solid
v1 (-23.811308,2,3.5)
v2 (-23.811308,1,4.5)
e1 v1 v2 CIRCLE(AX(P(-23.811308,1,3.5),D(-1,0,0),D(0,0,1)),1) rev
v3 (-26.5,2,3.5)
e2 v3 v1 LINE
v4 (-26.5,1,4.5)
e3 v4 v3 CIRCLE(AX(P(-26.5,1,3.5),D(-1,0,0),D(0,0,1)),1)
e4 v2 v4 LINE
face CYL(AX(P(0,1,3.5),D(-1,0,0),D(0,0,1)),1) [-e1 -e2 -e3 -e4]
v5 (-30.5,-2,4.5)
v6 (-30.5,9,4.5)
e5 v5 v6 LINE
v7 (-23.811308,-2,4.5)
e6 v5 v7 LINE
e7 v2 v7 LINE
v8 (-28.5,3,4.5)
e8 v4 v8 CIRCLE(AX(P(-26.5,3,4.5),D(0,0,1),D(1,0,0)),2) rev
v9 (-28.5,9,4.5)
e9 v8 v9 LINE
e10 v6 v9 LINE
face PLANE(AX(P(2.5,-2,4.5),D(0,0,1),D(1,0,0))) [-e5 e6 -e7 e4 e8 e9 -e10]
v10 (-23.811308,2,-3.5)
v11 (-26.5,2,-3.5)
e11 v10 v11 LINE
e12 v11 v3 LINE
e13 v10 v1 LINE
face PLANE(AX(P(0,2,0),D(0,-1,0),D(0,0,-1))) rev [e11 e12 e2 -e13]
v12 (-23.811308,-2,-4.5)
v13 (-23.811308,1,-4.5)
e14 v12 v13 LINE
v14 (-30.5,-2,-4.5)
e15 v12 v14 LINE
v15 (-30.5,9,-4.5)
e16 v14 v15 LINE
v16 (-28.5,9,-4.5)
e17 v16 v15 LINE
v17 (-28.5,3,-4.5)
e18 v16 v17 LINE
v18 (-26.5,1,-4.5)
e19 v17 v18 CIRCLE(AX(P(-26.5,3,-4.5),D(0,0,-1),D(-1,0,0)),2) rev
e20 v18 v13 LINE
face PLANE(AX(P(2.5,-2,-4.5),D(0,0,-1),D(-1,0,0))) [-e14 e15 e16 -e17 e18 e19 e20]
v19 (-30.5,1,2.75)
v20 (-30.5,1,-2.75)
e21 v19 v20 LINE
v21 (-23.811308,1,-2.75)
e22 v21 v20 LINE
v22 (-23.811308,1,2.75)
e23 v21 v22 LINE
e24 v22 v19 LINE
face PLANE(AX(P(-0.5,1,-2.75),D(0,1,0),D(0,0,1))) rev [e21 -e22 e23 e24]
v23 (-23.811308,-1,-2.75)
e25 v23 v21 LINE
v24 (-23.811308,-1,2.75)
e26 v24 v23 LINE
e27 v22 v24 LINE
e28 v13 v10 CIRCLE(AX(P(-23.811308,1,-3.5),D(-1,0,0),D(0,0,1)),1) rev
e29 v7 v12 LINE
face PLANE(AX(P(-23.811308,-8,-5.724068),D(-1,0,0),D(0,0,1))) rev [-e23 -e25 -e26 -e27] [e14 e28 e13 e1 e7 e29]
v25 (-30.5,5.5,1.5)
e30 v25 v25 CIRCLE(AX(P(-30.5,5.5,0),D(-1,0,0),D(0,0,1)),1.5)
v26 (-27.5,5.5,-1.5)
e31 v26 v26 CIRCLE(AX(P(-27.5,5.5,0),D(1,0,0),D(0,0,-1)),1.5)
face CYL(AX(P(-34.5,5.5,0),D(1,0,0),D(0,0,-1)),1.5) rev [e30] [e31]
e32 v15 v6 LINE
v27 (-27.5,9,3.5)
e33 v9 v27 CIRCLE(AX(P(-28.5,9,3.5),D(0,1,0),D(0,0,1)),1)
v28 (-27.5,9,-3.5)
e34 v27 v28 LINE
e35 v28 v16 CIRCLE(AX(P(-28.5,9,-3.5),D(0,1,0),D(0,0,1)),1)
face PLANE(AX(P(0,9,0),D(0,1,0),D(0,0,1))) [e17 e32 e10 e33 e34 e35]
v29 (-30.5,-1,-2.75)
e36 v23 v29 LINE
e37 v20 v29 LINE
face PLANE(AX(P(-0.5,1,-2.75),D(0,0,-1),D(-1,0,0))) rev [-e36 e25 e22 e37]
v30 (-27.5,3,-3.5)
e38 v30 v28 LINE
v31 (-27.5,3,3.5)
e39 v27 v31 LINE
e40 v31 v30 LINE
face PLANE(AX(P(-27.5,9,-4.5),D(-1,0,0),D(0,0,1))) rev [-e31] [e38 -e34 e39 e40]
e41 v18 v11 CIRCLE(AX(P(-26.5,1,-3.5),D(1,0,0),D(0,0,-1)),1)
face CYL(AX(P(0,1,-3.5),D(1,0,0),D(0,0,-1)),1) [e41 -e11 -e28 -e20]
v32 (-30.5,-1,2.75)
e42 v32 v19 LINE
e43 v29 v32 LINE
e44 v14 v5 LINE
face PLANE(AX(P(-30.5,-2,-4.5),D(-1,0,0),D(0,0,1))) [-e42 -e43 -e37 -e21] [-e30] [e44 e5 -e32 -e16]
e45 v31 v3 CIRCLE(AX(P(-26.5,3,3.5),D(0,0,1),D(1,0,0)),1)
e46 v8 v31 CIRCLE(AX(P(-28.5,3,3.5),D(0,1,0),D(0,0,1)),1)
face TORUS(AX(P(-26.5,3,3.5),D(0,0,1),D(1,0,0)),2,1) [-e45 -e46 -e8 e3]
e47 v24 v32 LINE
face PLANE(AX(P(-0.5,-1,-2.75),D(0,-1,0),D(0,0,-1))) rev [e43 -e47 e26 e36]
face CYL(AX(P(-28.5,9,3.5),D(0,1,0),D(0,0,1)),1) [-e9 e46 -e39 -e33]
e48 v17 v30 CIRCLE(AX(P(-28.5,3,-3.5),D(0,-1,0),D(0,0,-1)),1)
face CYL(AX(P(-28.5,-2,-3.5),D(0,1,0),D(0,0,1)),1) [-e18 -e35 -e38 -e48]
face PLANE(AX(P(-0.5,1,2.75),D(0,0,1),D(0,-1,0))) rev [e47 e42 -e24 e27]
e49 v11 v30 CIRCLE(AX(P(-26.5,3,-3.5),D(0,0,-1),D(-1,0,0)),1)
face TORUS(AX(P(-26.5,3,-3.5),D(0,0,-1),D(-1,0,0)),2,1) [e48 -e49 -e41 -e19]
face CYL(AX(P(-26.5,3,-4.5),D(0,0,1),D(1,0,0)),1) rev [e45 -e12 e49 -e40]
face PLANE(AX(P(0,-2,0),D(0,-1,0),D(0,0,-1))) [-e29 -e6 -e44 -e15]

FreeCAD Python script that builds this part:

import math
import FreeCAD as App
import Part
import Sketcher

V = App.Vector
Q = App.Units.Quantity


def edges_at(feature, points):
    """Names of the edges that pass closest to the given points."""
    edges = feature.Shape.Edges
    near = lambda p: min(range(len(edges)), key=lambda i: edges[i].distToShape(Part.Vertex(*p))[0])
    return sorted({f"Edge{near(p) + 1}" for p in points})

doc = App.newDocument("Part")
body = doc.addObject("PartDesign::Body", "Body")

# Sketch on XY plane
sketch1 = doc.addObject("Sketcher::SketchObject", "Sketch")
body.addObject(sketch1)
sketch1.AttachmentSupport = (doc.XY_Plane, [""])
sketch1.MapMode = "FlatFace"
sketch1.addGeometry(Part.LineSegment(V(-6, 0, 0), V(0, 0, 0)), False)
sketch1.addGeometry(Part.ArcOfCircle(Part.Circle(V(-3, 0, 0), V(0, 0, 1), 3), math.radians(0), math.radians(180)), False)
sketch1.addConstraint(Sketcher.Constraint("Coincident", 0, 1, 1, 2))
sketch1.addConstraint(Sketcher.Constraint("Coincident", 1, 1, 0, 2))
sketch1.addConstraint(Sketcher.Constraint("Horizontal", 0))
sketch1.addConstraint(Sketcher.Constraint("Coincident", 1, 1, -1, 1))
sketch1.addConstraint(Sketcher.Constraint("PointOnObject", 1, 3, -1))
sketch1.addConstraint(Sketcher.Constraint("Radius", 1, Q("3 mm")))
revolution = doc.addObject("PartDesign::Revolution", "Revolution")
body.addObject(revolution)
revolution.Profile = sketch1
revolution.ReferenceAxis = (sketch1, ["H_Axis"])
revolution.Angle = 360

# Sketch on XZ plane
sketch2 = doc.addObject("Sketcher::SketchObject", "Sketch001")
body.addObject(sketch2)
sketch2.AttachmentSupport = (doc.XZ_Plane, [""])
sketch2.MapMode = "FlatFace"
sketch2.addGeometry(Part.Circle(V(-3, 0, 0), V(0, 0, 1), 1.5), False)
sketch2.addConstraint(Sketcher.Constraint("PointOnObject", 0, 3, -1))
sketch2.addConstraint(Sketcher.Constraint("Diameter", 0, Q("3 mm")))
sketch2.addConstraint(Sketcher.Constraint("DistanceX", 0, 3, -1, 1, Q("3 mm")))
pocket1 = doc.addObject("PartDesign::Pocket", "Pocket")
body.addObject(pocket1)
pocket1.Profile = sketch2
pocket1.Type = "ThroughAll"
pocket1.Midplane = True

# Sketch on XZ plane
sketch3 = doc.addObject("Sketcher::SketchObject", "Sketch002")
body.addObject(sketch3)
sketch3.AttachmentSupport = (doc.XZ_Plane, [""])
sketch3.MapMode = "FlatFace"
sketch3.addGeometry(Part.LineSegment(V(-30, -4, 0), V(-30, 4, 0)), False)
sketch3.addGeometry(Part.LineSegment(V(-30, 4, 0), V(2, 4, 0)), False)
sketch3.addGeometry(Part.LineSegment(V(2, 4, 0), V(2, -4, 0)), False)
sketch3.addGeometry(Part.LineSegment(V(2, -4, 0), V(-30, -4, 0)), False)
sketch3.addConstraint(Sketcher.Constraint("Coincident", 0, 2, 1, 1))
sketch3.addConstraint(Sketcher.Constraint("Coincident", 1, 2, 2, 1))
sketch3.addConstraint(Sketcher.Constraint("Coincident", 2, 2, 3, 1))
sketch3.addConstraint(Sketcher.Constraint("Coincident", 3, 2, 0, 1))
sketch3.addConstraint(Sketcher.Constraint("Vertical", 0))
sketch3.addConstraint(Sketcher.Constraint("Horizontal", 1))
sketch3.addConstraint(Sketcher.Constraint("Vertical", 2))
sketch3.addConstraint(Sketcher.Constraint("Horizontal", 3))
sketch3.addConstraint(Sketcher.Constraint("DistanceX", 1, 1, 1, 2, Q("33 mm")))
sketch3.addConstraint(Sketcher.Constraint("DistanceY", 0, 1, 0, 2, Q("9 mm")))
sketch3.addConstraint(Sketcher.Constraint("DistanceX", 0, 2, -1, 1, Q("30.5 mm")))
sketch3.addConstraint(Sketcher.Constraint("DistanceY", -1, 1, 0, 2, Q("4.5 mm")))
pad1 = doc.addObject("PartDesign::Pad", "Pad")
body.addObject(pad1)
pad1.Profile = sketch3
pad1.Type = "TwoLengths"
pad1.Length = 2
pad1.Length2 = 2
pad1.Reversed = True

# Sketch on XZ plane
sketch4 = doc.addObject("Sketcher::SketchObject", "Sketch003")
body.addObject(sketch4)
sketch4.AttachmentSupport = (doc.XZ_Plane, [""])
sketch4.MapMode = "FlatFace"
sketch4.AttachmentOffset = App.Placement(V(0, 0, -2), App.Rotation())
sketch4.addGeometry(Part.Circle(V(-3, 0, 0), V(0, 0, 1), 1.5), False)
sketch4.addConstraint(Sketcher.Constraint("PointOnObject", 0, 3, -1))
sketch4.addConstraint(Sketcher.Constraint("Diameter", 0, Q("3 mm")))
sketch4.addConstraint(Sketcher.Constraint("DistanceX", 0, 3, -1, 1, Q("3 mm")))
pocket2 = doc.addObject("PartDesign::Pocket", "Pocket001")
body.addObject(pocket2)
pocket2.Profile = sketch4
pocket2.Type = "ThroughAll"
pocket2.Midplane = True

# Sketch on XZ plane
sketch5 = doc.addObject("Sketcher::SketchObject", "Sketch004")
body.addObject(sketch5)
sketch5.AttachmentSupport = (doc.XZ_Plane, [""])
sketch5.MapMode = "FlatFace"
sketch5.addGeometry(Part.LineSegment(V(-3, 3.5, 0), V(-3, -3.5, 0)), False)
sketch5.addGeometry(Part.ArcOfCircle(Part.Circle(V(-3, 0, 0), V(0, 0, 1), 3.5), math.radians(90), math.radians(270)), False)
sketch5.addGeometry(Part.LineSegment(V(-3, -3.5, 0), V(-3, 3.5, 0)), True)  # axis
sketch5.addConstraint(Sketcher.Constraint("Coincident", 0, 1, 1, 1))
sketch5.addConstraint(Sketcher.Constraint("Coincident", 1, 2, 0, 2))
sketch5.addConstraint(Sketcher.Constraint("Vertical", 0))
sketch5.addConstraint(Sketcher.Constraint("Vertical", 2))
sketch5.addConstraint(Sketcher.Constraint("Coincident", 2, 1, 1, 2))
sketch5.addConstraint(Sketcher.Constraint("PointOnObject", 1, 3, -1))
sketch5.addConstraint(Sketcher.Constraint("Vertical", 1, 3, 0, 1))
sketch5.addConstraint(Sketcher.Constraint("Equal", 0, 2))
sketch5.addConstraint(Sketcher.Constraint("Radius", 1, Q("3.5 mm")))
sketch5.addConstraint(Sketcher.Constraint("DistanceX", 1, 3, -1, 1, Q("3 mm")))
groove = doc.addObject("PartDesign::Groove", "Groove")
body.addObject(groove)
groove.Profile = sketch5
groove.ReferenceAxis = (sketch5, ["Axis0"])
groove.Angle = 360

# Sketch on YZ plane
sketch6 = doc.addObject("Sketcher::SketchObject", "Sketch005")
body.addObject(sketch6)
sketch6.AttachmentSupport = (doc.YZ_Plane, [""])
sketch6.MapMode = "FlatFace"
sketch6.AttachmentOffset = App.Placement(V(0, 0, -30.5), App.Rotation())
sketch6.addGeometry(Part.LineSegment(V(1, -2.8, 0), V(-1, -2.8, 0)), False)
sketch6.addGeometry(Part.LineSegment(V(-1, -2.8, 0), V(-1, 2.8, 0)), False)
sketch6.addGeometry(Part.LineSegment(V(-1, 2.8, 0), V(1, 2.8, 0)), False)
sketch6.addGeometry(Part.LineSegment(V(1, 2.8, 0), V(1, -2.8, 0)), False)
sketch6.addConstraint(Sketcher.Constraint("Coincident", 0, 2, 1, 1))
sketch6.addConstraint(Sketcher.Constraint("Coincident", 1, 2, 2, 1))
sketch6.addConstraint(Sketcher.Constraint("Coincident", 2, 2, 3, 1))
sketch6.addConstraint(Sketcher.Constraint("Coincident", 3, 2, 0, 1))
sketch6.addConstraint(Sketcher.Constraint("Horizontal", 0))
sketch6.addConstraint(Sketcher.Constraint("Vertical", 1))
sketch6.addConstraint(Sketcher.Constraint("Horizontal", 2))
sketch6.addConstraint(Sketcher.Constraint("Vertical", 3))
sketch6.addConstraint(Sketcher.Constraint("Symmetric", 0, 2, 2, 2, -1, 1))
sketch6.addConstraint(Sketcher.Constraint("DistanceX", 0, 2, 0, 1, Q("2 mm")))
sketch6.addConstraint(Sketcher.Constraint("DistanceY", 1, 1, 1, 2, Q("5.5 mm")))
pocket3 = doc.addObject("PartDesign::Pocket", "Pocket002")
body.addObject(pocket3)
pocket3.Profile = sketch6
pocket3.Length = 30
pocket3.Reversed = True

# Sketch on XZ plane
sketch7 = doc.addObject("Sketcher::SketchObject", "Sketch006")
body.addObject(sketch7)
sketch7.AttachmentSupport = (doc.XZ_Plane, [""])
sketch7.MapMode = "FlatFace"
sketch7.AttachmentOffset = App.Placement(V(0, 0, -2), App.Rotation())
sketch7.addGeometry(Part.LineSegment(V(-30.5, -4.5, 0), V(-30.5, 4.5, 0)), False)
sketch7.addGeometry(Part.LineSegment(V(-30.5, 4.5, 0), V(-27.5, 4.5, 0)), False)
sketch7.addGeometry(Part.LineSegment(V(-27.5, 4.5, 0), V(-27.5, -4.5, 0)), False)
sketch7.addGeometry(Part.LineSegment(V(-27.5, -4.5, 0), V(-30.5, -4.5, 0)), False)
sketch7.addConstraint(Sketcher.Constraint("Coincident", 0, 2, 1, 1))
sketch7.addConstraint(Sketcher.Constraint("Coincident", 1, 2, 2, 1))
sketch7.addConstraint(Sketcher.Constraint("Coincident", 2, 2, 3, 1))
sketch7.addConstraint(Sketcher.Constraint("Coincident", 3, 2, 0, 1))
sketch7.addConstraint(Sketcher.Constraint("Vertical", 0))
sketch7.addConstraint(Sketcher.Constraint("Horizontal", 1))
sketch7.addConstraint(Sketcher.Constraint("Vertical", 2))
sketch7.addConstraint(Sketcher.Constraint("Horizontal", 3))
sketch7.addConstraint(Sketcher.Constraint("DistanceX", 1, 1, 1, 2, Q("3 mm")))
sketch7.addConstraint(Sketcher.Constraint("DistanceY", 0, 1, 0, 2, Q("9 mm")))
sketch7.addConstraint(Sketcher.Constraint("DistanceX", 0, 2, -1, 1, Q("30.5 mm")))
sketch7.addConstraint(Sketcher.Constraint("DistanceY", -1, 1, 0, 2, Q("4.5 mm")))
pad2 = doc.addObject("PartDesign::Pad", "Pad001")
body.addObject(pad2)
pad2.Profile = sketch7
pad2.Length = 7
pad2.Reversed = True

# Sketch on YZ plane
sketch8 = doc.addObject("Sketcher::SketchObject", "Sketch007")
body.addObject(sketch8)
sketch8.AttachmentSupport = (doc.YZ_Plane, [""])
sketch8.MapMode = "FlatFace"
sketch8.AttachmentOffset = App.Placement(V(0, 0, -27.5), App.Rotation())
sketch8.addGeometry(Part.Circle(V(5.5, 0, 0), V(0, 0, 1), 1.5), False)
sketch8.addConstraint(Sketcher.Constraint("PointOnObject", 0, 3, -1))
sketch8.addConstraint(Sketcher.Constraint("Diameter", 0, Q("3 mm")))
sketch8.addConstraint(Sketcher.Constraint("DistanceX", -1, 1, 0, 3, Q("5.5 mm")))
pocket4 = doc.addObject("PartDesign::Pocket", "Pocket003")
body.addObject(pocket4)
pocket4.Profile = sketch8
pocket4.Length = 7
doc.recompute()

fillet = doc.addObject("PartDesign::Fillet", "Fillet")
body.addObject(fillet)
fillet.Base = (pocket4, edges_at(pocket4, [(2.5, 0, -4.5)]))
fillet.Radius = 1
doc.recompute()

fillet2 = doc.addObject("PartDesign::Fillet", "Fillet001")
body.addObject(fillet2)
fillet2.Base = (fillet, edges_at(fillet, [(2.5, 0, 4.5)]))
fillet2.Radius = 1
doc.recompute()

fillet3 = doc.addObject("PartDesign::Fillet", "Fillet002")
body.addObject(fillet3)
fillet3.Base = (fillet2, edges_at(fillet2, [(-27.5, 2, 0)]))
fillet3.Radius = 1
doc.recompute()

fillet4 = doc.addObject("PartDesign::Fillet", "Fillet003")
body.addObject(fillet4)
fillet4.Base = (fillet3, edges_at(fillet3, [
    (-12.5, 2, 4.5),
    (-27.207, 2.293, -4.5),
    (-27.207, 2.293, 4.5),
    (-27.5, 6, 4.5),
    (-27.5, 6, -4.5),
    (-12.5, 2, -4.5),
    (2.207, 2, -4.207),
    (2.5, 2, 0),
    (2.207, 2, 4.207),
]))
fillet4.Radius = 1
body2 = doc.addObject("PartDesign::Body", "Body001")

# Sketch on XZ plane
sketch9 = doc.addObject("Sketcher::SketchObject", "Sketch008")
body2.addObject(sketch9)
sketch9.AttachmentSupport = (doc.getObject("XZ_Plane001"), [""])
sketch9.MapMode = "FlatFace"
sketch9.addGeometry(Part.LineSegment(V(-3, 3, 0), V(-3, -3, 0)), False)
sketch9.addGeometry(Part.ArcOfCircle(Part.Circle(V(-3, 0, 0), V(0, 0, 1), 3), math.radians(90), math.radians(270)), False)
sketch9.addGeometry(Part.LineSegment(V(-3, -3, 0), V(-3, 3, 0)), True)  # axis
sketch9.addConstraint(Sketcher.Constraint("Coincident", 0, 1, 1, 1))
sketch9.addConstraint(Sketcher.Constraint("Coincident", 1, 2, 0, 2))
sketch9.addConstraint(Sketcher.Constraint("Vertical", 0))
sketch9.addConstraint(Sketcher.Constraint("Vertical", 2))
sketch9.addConstraint(Sketcher.Constraint("Coincident", 2, 1, 1, 2))
sketch9.addConstraint(Sketcher.Constraint("PointOnObject", 1, 3, -1))
sketch9.addConstraint(Sketcher.Constraint("Vertical", 1, 3, 0, 1))
sketch9.addConstraint(Sketcher.Constraint("Equal", 0, 2))
sketch9.addConstraint(Sketcher.Constraint("Radius", 1, Q("3 mm")))
sketch9.addConstraint(Sketcher.Constraint("DistanceX", 1, 3, -1, 1, Q("3 mm")))
revolution2 = doc.addObject("PartDesign::Revolution", "Revolution001")
body2.addObject(revolution2)
revolution2.Profile = sketch9
revolution2.ReferenceAxis = (sketch9, ["Axis0"])
revolution2.Angle = 360

# Sketch on XZ plane
sketch10 = doc.addObject("Sketcher::SketchObject", "Sketch009")
body2.addObject(sketch10)
sketch10.AttachmentSupport = (doc.getObject("XZ_Plane001"), [""])
sketch10.MapMode = "FlatFace"
sketch10.addGeometry(Part.Circle(V(-3, 0, 0), V(0, 0, 1), 1.5), False)
sketch10.addConstraint(Sketcher.Constraint("PointOnObject", 0, 3, -1))
sketch10.addConstraint(Sketcher.Constraint("Diameter", 0, Q("3 mm")))
sketch10.addConstraint(Sketcher.Constraint("DistanceX", 0, 3, -1, 1, Q("3 mm")))
pocket5 = doc.addObject("PartDesign::Pocket", "Pocket004")
body2.addObject(pocket5)
pocket5.Profile = sketch10
pocket5.Type = "ThroughAll"
pocket5.Midplane = True

# Sketch on YZ plane
sketch11 = doc.addObject("Sketcher::SketchObject", "Sketch010")
body2.addObject(sketch11)
sketch11.AttachmentSupport = (doc.getObject("YZ_Plane001"), [""])
sketch11.MapMode = "FlatFace"
sketch11.AttachmentOffset = App.Placement(V(0, 0, -30.5), App.Rotation())
sketch11.addGeometry(Part.LineSegment(V(2.8, -4.5, 0), V(2, -4.5, 0)), False)
sketch11.addGeometry(Part.LineSegment(V(2, -4.5, 0), V(2, 4.5, 0)), False)
sketch11.addGeometry(Part.LineSegment(V(2, 4.5, 0), V(2.8, 4.5, 0)), False)
sketch11.addGeometry(Part.LineSegment(V(2.8, 4.5, 0), V(2.8, -4.5, 0)), False)
sketch11.addGeometry(Part.LineSegment(V(-2, -4.5, 0), V(-3.2, -4.5, 0)), False)
sketch11.addGeometry(Part.LineSegment(V(-3.2, -4.5, 0), V(-3.2, 4.5, 0)), False)
sketch11.addGeometry(Part.LineSegment(V(-3.2, 4.5, 0), V(-2, 4.5, 0)), False)
sketch11.addGeometry(Part.LineSegment(V(-2, 4.5, 0), V(-2, -4.5, 0)), False)
sketch11.addConstraint(Sketcher.Constraint("Coincident", 0, 2, 1, 1))
sketch11.addConstraint(Sketcher.Constraint("Coincident", 1, 2, 2, 1))
sketch11.addConstraint(Sketcher.Constraint("Coincident", 2, 2, 3, 1))
sketch11.addConstraint(Sketcher.Constraint("Coincident", 3, 2, 0, 1))
sketch11.addConstraint(Sketcher.Constraint("Coincident", 4, 2, 5, 1))
sketch11.addConstraint(Sketcher.Constraint("Coincident", 5, 2, 6, 1))
sketch11.addConstraint(Sketcher.Constraint("Coincident", 6, 2, 7, 1))
sketch11.addConstraint(Sketcher.Constraint("Coincident", 7, 2, 4, 1))
sketch11.addConstraint(Sketcher.Constraint("Horizontal", 0))
sketch11.addConstraint(Sketcher.Constraint("Vertical", 1))
sketch11.addConstraint(Sketcher.Constraint("Horizontal", 2))
sketch11.addConstraint(Sketcher.Constraint("Vertical", 3))
sketch11.addConstraint(Sketcher.Constraint("Horizontal", 4))
sketch11.addConstraint(Sketcher.Constraint("Vertical", 5))
sketch11.addConstraint(Sketcher.Constraint("Horizontal", 6))
sketch11.addConstraint(Sketcher.Constraint("Vertical", 7))
sketch11.addConstraint(Sketcher.Constraint("Symmetric", 1, 2, 6, 2, -2))
sketch11.addConstraint(Sketcher.Constraint("Horizontal", 3, 2, 4, 2))
sketch11.addConstraint(Sketcher.Constraint("DistanceX", -1, 1, 0, 2, Q("2 mm")))
sketch11.addConstraint(Sketcher.Constraint("DistanceY", 0, 2, -1, 1, Q("4.5 mm")))
sketch11.addConstraint(Sketcher.Constraint("DistanceX", 0, 2, 0, 1, Q("0.781338 mm")))
sketch11.addConstraint(Sketcher.Constraint("DistanceX", 4, 2, 4, 1, Q("1.225545 mm")))
sketch11.addConstraint(Sketcher.Constraint("DistanceY", 1, 1, 1, 2, Q("8.987495 mm")))
pocket6 = doc.addObject("PartDesign::Pocket", "Pocket005")
body2.addObject(pocket6)
pocket6.Profile = sketch11
pocket6.Length = 46
pocket6.Reversed = True
body3 = doc.addObject("PartDesign::Body", "Body002")

# Sketch on XZ plane
sketch12 = doc.addObject("Sketcher::SketchObject", "Sketch011")
body3.addObject(sketch12)
sketch12.AttachmentSupport = (doc.getObject("XZ_Plane002"), [""])
sketch12.MapMode = "FlatFace"
sketch12.AttachmentOffset = App.Placement(V(0, 0, -2), App.Rotation())
sketch12.addGeometry(Part.LineSegment(V(-24, -6, 0), V(-24, 8, 0)), False)
sketch12.addGeometry(Part.LineSegment(V(-24, 8, 0), V(4, 8, 0)), False)
sketch12.addGeometry(Part.LineSegment(V(4, 8, 0), V(4, -6, 0)), False)
sketch12.addGeometry(Part.LineSegment(V(4, -6, 0), V(-24, -6, 0)), False)
sketch12.addConstraint(Sketcher.Constraint("Coincident", 0, 2, 1, 1))
sketch12.addConstraint(Sketcher.Constraint("Coincident", 1, 2, 2, 1))
sketch12.addConstraint(Sketcher.Constraint("Coincident", 2, 2, 3, 1))
sketch12.addConstraint(Sketcher.Constraint("Coincident", 3, 2, 0, 1))
sketch12.addConstraint(Sketcher.Constraint("Vertical", 0))
sketch12.addConstraint(Sketcher.Constraint("Horizontal", 1))
sketch12.addConstraint(Sketcher.Constraint("Vertical", 2))
sketch12.addConstraint(Sketcher.Constraint("Horizontal", 3))
sketch12.addConstraint(Sketcher.Constraint("DistanceX", 1, 1, 1, 2, Q("28.065918 mm")))
sketch12.addConstraint(Sketcher.Constraint("DistanceY", 0, 1, 0, 2, Q("13.293965 mm")))
sketch12.addConstraint(Sketcher.Constraint("DistanceX", 0, 2, -1, 1, Q("23.811308 mm")))
sketch12.addConstraint(Sketcher.Constraint("DistanceY", -1, 1, 0, 2, Q("7.569897 mm")))
pad3 = doc.addObject("PartDesign::Pad", "Pad002")
body3.addObject(pad3)
pad3.Profile = sketch12
pad3.Length = 10
doc.recompute()

body4 = doc.addObject("PartDesign::Body", "Body003")
body4.BaseFeature = body3
boolean = doc.addObject("PartDesign::Boolean", "Boolean")
body.addObject(boolean)
boolean.Type = "Cut"
boolean.addObjects([body4])
doc.recompute()

boolean2 = doc.addObject("PartDesign::Boolean", "Boolean001")
body2.addObject(boolean2)
boolean2.Type = "Cut"
boolean2.addObjects([body3])

doc.recompute()
